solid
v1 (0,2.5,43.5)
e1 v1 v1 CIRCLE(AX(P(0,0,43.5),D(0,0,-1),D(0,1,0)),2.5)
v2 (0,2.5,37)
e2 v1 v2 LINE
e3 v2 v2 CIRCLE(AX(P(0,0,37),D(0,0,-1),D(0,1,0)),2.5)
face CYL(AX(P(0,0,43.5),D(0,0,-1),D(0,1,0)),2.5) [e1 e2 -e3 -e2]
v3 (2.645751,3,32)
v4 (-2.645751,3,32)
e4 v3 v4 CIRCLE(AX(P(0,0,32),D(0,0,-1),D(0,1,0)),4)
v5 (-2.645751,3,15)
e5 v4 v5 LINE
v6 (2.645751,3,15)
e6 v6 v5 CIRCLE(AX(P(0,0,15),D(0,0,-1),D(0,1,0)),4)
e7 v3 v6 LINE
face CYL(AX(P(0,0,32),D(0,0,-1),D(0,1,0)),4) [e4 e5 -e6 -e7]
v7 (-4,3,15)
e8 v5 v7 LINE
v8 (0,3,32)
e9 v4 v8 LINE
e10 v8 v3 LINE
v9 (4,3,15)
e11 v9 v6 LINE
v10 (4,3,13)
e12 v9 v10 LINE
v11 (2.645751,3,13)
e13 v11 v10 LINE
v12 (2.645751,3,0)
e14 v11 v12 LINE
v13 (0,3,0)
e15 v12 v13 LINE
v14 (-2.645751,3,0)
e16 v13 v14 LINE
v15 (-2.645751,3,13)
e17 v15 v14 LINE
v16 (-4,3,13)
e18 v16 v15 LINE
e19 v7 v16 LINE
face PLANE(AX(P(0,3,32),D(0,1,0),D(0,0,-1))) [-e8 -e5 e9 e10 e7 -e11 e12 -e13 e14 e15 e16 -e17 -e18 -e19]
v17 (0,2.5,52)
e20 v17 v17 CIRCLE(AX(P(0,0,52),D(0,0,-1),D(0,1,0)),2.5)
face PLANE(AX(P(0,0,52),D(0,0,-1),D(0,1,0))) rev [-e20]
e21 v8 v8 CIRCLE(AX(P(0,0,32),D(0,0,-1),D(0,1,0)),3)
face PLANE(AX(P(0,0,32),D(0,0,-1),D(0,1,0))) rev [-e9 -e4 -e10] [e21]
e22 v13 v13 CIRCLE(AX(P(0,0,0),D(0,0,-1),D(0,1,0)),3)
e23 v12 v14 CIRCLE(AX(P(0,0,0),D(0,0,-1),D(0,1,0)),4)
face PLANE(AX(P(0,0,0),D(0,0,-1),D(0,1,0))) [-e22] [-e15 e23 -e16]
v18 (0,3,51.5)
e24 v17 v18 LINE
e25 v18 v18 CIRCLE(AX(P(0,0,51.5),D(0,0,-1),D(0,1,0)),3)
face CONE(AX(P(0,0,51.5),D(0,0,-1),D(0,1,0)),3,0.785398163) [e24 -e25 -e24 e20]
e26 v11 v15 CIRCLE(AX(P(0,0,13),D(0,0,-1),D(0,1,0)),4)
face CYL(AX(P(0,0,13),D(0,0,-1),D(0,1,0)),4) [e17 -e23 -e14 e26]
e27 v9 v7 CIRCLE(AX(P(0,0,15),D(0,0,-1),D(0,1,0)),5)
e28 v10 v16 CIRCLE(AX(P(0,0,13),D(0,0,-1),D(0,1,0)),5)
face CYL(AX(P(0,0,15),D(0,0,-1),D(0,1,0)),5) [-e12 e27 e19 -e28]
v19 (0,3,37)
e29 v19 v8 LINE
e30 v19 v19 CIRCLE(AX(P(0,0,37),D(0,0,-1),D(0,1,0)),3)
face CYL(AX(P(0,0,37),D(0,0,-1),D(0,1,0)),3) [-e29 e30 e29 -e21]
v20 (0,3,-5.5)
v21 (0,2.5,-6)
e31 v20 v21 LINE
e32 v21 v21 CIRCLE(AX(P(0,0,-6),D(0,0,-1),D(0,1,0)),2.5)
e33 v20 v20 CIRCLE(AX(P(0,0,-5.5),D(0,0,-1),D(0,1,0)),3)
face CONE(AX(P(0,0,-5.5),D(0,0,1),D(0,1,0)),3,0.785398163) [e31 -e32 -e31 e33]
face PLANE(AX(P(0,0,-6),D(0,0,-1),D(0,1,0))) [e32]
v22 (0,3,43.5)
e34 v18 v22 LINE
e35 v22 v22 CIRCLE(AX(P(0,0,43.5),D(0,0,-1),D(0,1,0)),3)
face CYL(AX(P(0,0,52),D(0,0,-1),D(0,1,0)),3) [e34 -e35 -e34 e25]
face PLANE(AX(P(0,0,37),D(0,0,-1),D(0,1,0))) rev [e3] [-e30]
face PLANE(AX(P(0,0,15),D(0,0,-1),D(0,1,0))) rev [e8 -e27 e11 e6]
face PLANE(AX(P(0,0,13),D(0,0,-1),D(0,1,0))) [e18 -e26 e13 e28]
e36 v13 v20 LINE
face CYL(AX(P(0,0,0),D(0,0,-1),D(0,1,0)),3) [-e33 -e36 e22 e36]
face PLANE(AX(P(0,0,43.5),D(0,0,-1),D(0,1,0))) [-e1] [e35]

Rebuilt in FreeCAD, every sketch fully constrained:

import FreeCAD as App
import Part
import Sketcher

V = App.Vector


def edges_at(feature, points):
    """Names of the edges that pass closest to the given points."""
    edges = feature.Shape.Edges
    near = lambda p: min(range(len(edges)), key=lambda i: edges[i].distToShape(Part.Vertex(*p))[0])
    return sorted({f"Edge{near(p) + 1}" for p in points})

doc = App.newDocument("Part")
body = doc.addObject("PartDesign::Body", "Body")

# Sketch on YZ plane
sketch1 = body.newObject("Sketcher::SketchObject", "Sketch")
sketch1.AttachmentSupport = (doc.getObject("YZ_Plane"), [""])
sketch1.MapMode = "FlatFace"
sketch1.addGeometry(Part.LineSegment(V(3, 52, 0), V(0, 52, 0)), False)
sketch1.addGeometry(Part.LineSegment(V(0, 52, 0), V(0, -6, 0)), False)
sketch1.addGeometry(Part.LineSegment(V(0, -6, 0), V(3, -6, 0)), False)
sketch1.addGeometry(Part.LineSegment(V(3, -6, 0), V(3, 0, 0)), False)
sketch1.addGeometry(Part.LineSegment(V(3, 0, 0), V(4, 0, 0)), False)
sketch1.addGeometry(Part.LineSegment(V(4, 0, 0), V(4, 13, 0)), False)
sketch1.addGeometry(Part.LineSegment(V(4, 13, 0), V(5, 13, 0)), False)
sketch1.addGeometry(Part.LineSegment(V(5, 13, 0), V(5, 15, 0)), False)
sketch1.addGeometry(Part.LineSegment(V(5, 15, 0), V(4, 15, 0)), False)
sketch1.addGeometry(Part.LineSegment(V(4, 15, 0), V(4, 32, 0)), False)
sketch1.addGeometry(Part.LineSegment(V(4, 32, 0), V(3, 32, 0)), False)
sketch1.addGeometry(Part.LineSegment(V(3, 32, 0), V(3, 37, 0)), False)
sketch1.addGeometry(Part.LineSegment(V(3, 37, 0), V(2.5, 37, 0)), False)
sketch1.addGeometry(Part.LineSegment(V(2.5, 37, 0), V(2.5, 43.5, 0)), False)
sketch1.addGeometry(Part.LineSegment(V(2.5, 43.5, 0), V(3, 43.5, 0)), False)
sketch1.addGeometry(Part.LineSegment(V(3, 43.5, 0), V(3, 52, 0)), False)
sketch1.addConstraint(Sketcher.Constraint("Coincident", 0, 2, 1, 1))
sketch1.addConstraint(Sketcher.Constraint("Coincident", 1, 2, 2, 1))
sketch1.addConstraint(Sketcher.Constraint("Coincident", 2, 2, 3, 1))
sketch1.addConstraint(Sketcher.Constraint("Coincident", 3, 2, 4, 1))
sketch1.addConstraint(Sketcher.Constraint("Coincident", 4, 2, 5, 1))
sketch1.addConstraint(Sketcher.Constraint("Coincident", 5, 2, 6, 1))
sketch1.addConstraint(Sketcher.Constraint("Coincident", 6, 2, 7, 1))
sketch1.addConstraint(Sketcher.Constraint("Coincident", 7, 2, 8, 1))
sketch1.addConstraint(Sketcher.Constraint("Coincident", 8, 2, 9, 1))
sketch1.addConstraint(Sketcher.Constraint("Coincident", 9, 2, 10, 1))
sketch1.addConstraint(Sketcher.Constraint("Coincident", 10, 2, 11, 1))
sketch1.addConstraint(Sketcher.Constraint("Coincident", 11, 2, 12, 1))
sketch1.addConstraint(Sketcher.Constraint("Coincident", 12, 2, 13, 1))
sketch1.addConstraint(Sketcher.Constraint("Coincident", 13, 2, 14, 1))
sketch1.addConstraint(Sketcher.Constraint("Coincident", 14, 2, 15, 1))
sketch1.addConstraint(Sketcher.Constraint("Coincident", 15, 2, 0, 1))
sketch1.addConstraint(Sketcher.Constraint("Horizontal", 0))
sketch1.addConstraint(Sketcher.Constraint("Vertical", 1))
sketch1.addConstraint(Sketcher.Constraint("Horizontal", 2))
sketch1.addConstraint(Sketcher.Constraint("Vertical", 3))
sketch1.addConstraint(Sketcher.Constraint("Horizontal", 4))
sketch1.addConstraint(Sketcher.Constraint("Vertical", 5))
sketch1.addConstraint(Sketcher.Constraint("Horizontal", 6))
sketch1.addConstraint(Sketcher.Constraint("Vertical", 7))
sketch1.addConstraint(Sketcher.Constraint("Horizontal", 8))
sketch1.addConstraint(Sketcher.Constraint("Vertical", 9))
sketch1.addConstraint(Sketcher.Constraint("Horizontal", 10))
sketch1.addConstraint(Sketcher.Constraint("Vertical", 11))
sketch1.addConstraint(Sketcher.Constraint("Horizontal", 12))
sketch1.addConstraint(Sketcher.Constraint("Vertical", 13))
sketch1.addConstraint(Sketcher.Constraint("Horizontal", 14))
sketch1.addConstraint(Sketcher.Constraint("Vertical", 15))
sketch1.addConstraint(Sketcher.Constraint("PointOnObject", 0, 2, -2))
sketch1.addConstraint(Sketcher.Constraint("PointOnObject", 3, 2, -1))
sketch1.addConstraint(Sketcher.Constraint("Vertical", 5, 2, 8, 2))
sketch1.addConstraint(Sketcher.Constraint("Vertical", 3, 2, 10, 2))
sketch1.addConstraint(Sketcher.Constraint("Vertical", 11, 2, 14, 2))
sketch1.addConstraint(Sketcher.Constraint("Equal", 4, 6))
sketch1.addConstraint(Sketcher.Constraint("DistanceY", 3, 1, 3, 2, 6.0))
sketch1.addConstraint(Sketcher.Constraint("DistanceY", 5, 1, 5, 2, 13.0))
sketch1.addConstraint(Sketcher.Constraint("DistanceY", 7, 1, 7, 2, 2.0))
sketch1.addConstraint(Sketcher.Constraint("DistanceY", 9, 1, 9, 2, 17.0))
sketch1.addConstraint(Sketcher.Constraint("DistanceY", 11, 1, 11, 2, 5.0))
sketch1.addConstraint(Sketcher.Constraint("DistanceX", 12, 2, 12, 1, 0.5))
sketch1.addConstraint(Sketcher.Constraint("DistanceY", 15, 1, 15, 2, 8.5))
sketch1.addConstraint(Sketcher.Constraint("DistanceX", -1, 1, 6, 2, 5.0))
sketch1.addConstraint(Sketcher.Constraint("DistanceX", 3, 2, 6, 2, 2.0))
sketch1.addConstraint(Sketcher.Constraint("DistanceY", 9, 2, 0, 2, 20.0))
revolution = body.newObject("PartDesign::Revolution", "Revolution")
revolution.Profile = sketch1
revolution.ReferenceAxis = (sketch1, ["V_Axis"])
revolution.Angle = 360

# Sketch on YZ plane
sketch2 = body.newObject("Sketcher::SketchObject", "Sketch001")
sketch2.AttachmentSupport = (doc.getObject("YZ_Plane"), [""])
sketch2.MapMode = "FlatFace"
sketch2.addGeometry(Part.LineSegment(V(7, 0, 0), V(7, 32, 0)), False)
sketch2.addGeometry(Part.LineSegment(V(7, 32, 0), V(3, 32, 0)), False)
sketch2.addGeometry(Part.LineSegment(V(3, 32, 0), V(3, 0, 0)), False)
sketch2.addGeometry(Part.LineSegment(V(3, 0, 0), V(7, 0, 0)), False)
sketch2.addConstraint(Sketcher.Constraint("Coincident", 0, 2, 1, 1))
sketch2.addConstraint(Sketcher.Constraint("Coincident", 1, 2, 2, 1))
sketch2.addConstraint(Sketcher.Constraint("Coincident", 2, 2, 3, 1))
sketch2.addConstraint(Sketcher.Constraint("Coincident", 3, 2, 0, 1))
sketch2.addConstraint(Sketcher.Constraint("Vertical", 0))
sketch2.addConstraint(Sketcher.Constraint("Horizontal", 1))
sketch2.addConstraint(Sketcher.Constraint("Vertical", 2))
sketch2.addConstraint(Sketcher.Constraint("Horizontal", 3))
sketch2.addConstraint(Sketcher.Constraint("PointOnObject", 2, 2, -1))
sketch2.addConstraint(Sketcher.Constraint("DistanceX", 1, 2, 1, 1, 4.0))
sketch2.addConstraint(Sketcher.Constraint("DistanceX", -1, 1, 1, 2, 3.0))
sketch2.addConstraint(Sketcher.Constraint("DistanceY", 0, 1, 0, 2, 32.0))
pocket1 = body.newObject("PartDesign::Pocket", "Pocket")
pocket1.Profile = sketch2
pocket1.Type = "ThroughAll"
pocket1.Midplane = True
doc.recompute()

chamfer = body.newObject("PartDesign::Chamfer", "Chamfer")
chamfer.Base = (pocket1, edges_at(pocket1, [(0, -3, 52), (0, -3, -6)]))
chamfer.Size = 0.5

doc.recompute()
